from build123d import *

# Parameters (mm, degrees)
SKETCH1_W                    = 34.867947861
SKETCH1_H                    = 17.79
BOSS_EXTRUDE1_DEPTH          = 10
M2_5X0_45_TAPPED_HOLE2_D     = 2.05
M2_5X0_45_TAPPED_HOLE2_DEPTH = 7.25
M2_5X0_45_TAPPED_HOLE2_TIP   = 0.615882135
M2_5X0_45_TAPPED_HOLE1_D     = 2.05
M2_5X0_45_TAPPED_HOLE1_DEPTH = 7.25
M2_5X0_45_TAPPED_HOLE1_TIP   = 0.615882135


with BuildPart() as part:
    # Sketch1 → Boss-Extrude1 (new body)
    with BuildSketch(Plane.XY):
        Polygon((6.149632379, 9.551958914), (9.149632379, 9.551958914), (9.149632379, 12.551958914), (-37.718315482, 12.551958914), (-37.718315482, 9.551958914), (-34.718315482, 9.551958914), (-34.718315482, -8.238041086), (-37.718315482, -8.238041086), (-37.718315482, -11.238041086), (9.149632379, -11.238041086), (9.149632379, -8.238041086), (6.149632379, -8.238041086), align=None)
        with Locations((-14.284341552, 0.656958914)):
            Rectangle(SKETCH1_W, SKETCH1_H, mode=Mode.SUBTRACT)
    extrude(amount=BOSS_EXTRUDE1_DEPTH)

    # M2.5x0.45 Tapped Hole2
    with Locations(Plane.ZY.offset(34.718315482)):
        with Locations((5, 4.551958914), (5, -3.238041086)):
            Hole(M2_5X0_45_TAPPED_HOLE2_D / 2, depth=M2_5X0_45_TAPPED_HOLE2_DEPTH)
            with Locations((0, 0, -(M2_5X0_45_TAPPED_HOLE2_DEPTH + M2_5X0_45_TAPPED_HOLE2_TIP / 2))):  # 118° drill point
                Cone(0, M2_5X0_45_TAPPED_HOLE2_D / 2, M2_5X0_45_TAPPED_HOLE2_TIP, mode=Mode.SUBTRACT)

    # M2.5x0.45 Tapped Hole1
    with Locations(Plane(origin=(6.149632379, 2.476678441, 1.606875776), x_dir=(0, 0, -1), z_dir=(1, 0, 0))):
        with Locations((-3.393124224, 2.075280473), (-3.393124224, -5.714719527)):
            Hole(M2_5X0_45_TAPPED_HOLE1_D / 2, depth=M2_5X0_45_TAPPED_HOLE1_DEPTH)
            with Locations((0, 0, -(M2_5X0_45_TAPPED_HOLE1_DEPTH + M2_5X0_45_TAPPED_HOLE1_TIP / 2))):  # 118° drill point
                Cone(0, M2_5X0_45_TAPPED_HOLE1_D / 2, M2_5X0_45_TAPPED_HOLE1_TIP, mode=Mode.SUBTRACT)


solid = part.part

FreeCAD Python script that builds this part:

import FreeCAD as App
import Part
import Sketcher
from FreeCAD import Vector
Q = App.Units.Quantity

doc = App.newDocument("Part")
params = doc.addObject("Spreadsheet::Sheet", "Params")
for row, (alias, value) in enumerate([
    ("sketch1_width", "3 mm"),
    ("sketch1_height", "17.79 mm"),
    ("pad1_length", "10 mm"),
    ("sketch2_diameter", "2.05 mm"),
    ("hole_diameter", "2.05 mm"),
    ("hole_depth", "7.25 mm"),
    ("sketch3_diameter", "2.05 mm"),
    ("hole2_diameter", "2.05 mm"),
    ("hole2_depth", "7.25 mm"),
], start=1):
    params.set(f"A{row}", alias)
    params.set(f"B{row}", "=" + value)
    params.setAlias(f"B{row}", alias)

body = doc.addObject("PartDesign::Body", "Body")

sketch1 = body.newObject("Sketcher::SketchObject", "Sketch")
sketch1.AttachmentSupport = (doc.getObject("XY_Plane"), [""])
sketch1.MapMode = "FlatFace"
sketch1.addGeometry([
    Part.LineSegment(Vector(6.1, 9.6, 0), Vector(9.1, 9.6, 0)),
    Part.LineSegment(Vector(9.1, 9.6, 0), Vector(9.1, 12.6, 0)),
    Part.LineSegment(Vector(9.1, 12.6, 0), Vector(-37.7, 12.6, 0)),
    Part.LineSegment(Vector(-37.7, 12.6, 0), Vector(-37.7, 9.6, 0)),
    Part.LineSegment(Vector(-37.7, 9.6, 0), Vector(-34.7, 9.6, 0)),
    Part.LineSegment(Vector(-34.7, 9.6, 0), Vector(-34.7, -8.2, 0)),
    Part.LineSegment(Vector(-34.7, -8.2, 0), Vector(-37.7, -8.2, 0)),
    Part.LineSegment(Vector(-37.7, -8.2, 0), Vector(-37.7, -11.2, 0)),
    Part.LineSegment(Vector(-37.7, -11.2, 0), Vector(9.1, -11.2, 0)),
    Part.LineSegment(Vector(9.1, -11.2, 0), Vector(9.1, -8.2, 0)),
    Part.LineSegment(Vector(9.1, -8.2, 0), Vector(6.1, -8.2, 0)),
    Part.LineSegment(Vector(6.1, -8.2, 0), Vector(6.1, 9.6, 0)),
    Part.LineSegment(Vector(3.1, -8.2, 0), Vector(-31.7, -8.2, 0)),
    Part.LineSegment(Vector(-31.7, -8.2, 0), Vector(-31.7, 9.6, 0)),
    Part.LineSegment(Vector(-31.7, 9.6, 0), Vector(3.1, 9.6, 0)),
    Part.LineSegment(Vector(3.1, 9.6, 0), Vector(3.1, -8.2, 0)),
], False)
sketch1.addConstraint([
    Sketcher.Constraint("Coincident", 0, 2, 1, 1),
    Sketcher.Constraint("Coincident", 1, 2, 2, 1),
    Sketcher.Constraint("Coincident", 2, 2, 3, 1),
    Sketcher.Constraint("Coincident", 3, 2, 4, 1),
    Sketcher.Constraint("Coincident", 4, 2, 5, 1),
    Sketcher.Constraint("Coincident", 5, 2, 6, 1),
    Sketcher.Constraint("Coincident", 6, 2, 7, 1),
    Sketcher.Constraint("Coincident", 7, 2, 8, 1),
    Sketcher.Constraint("Coincident", 8, 2, 9, 1),
    Sketcher.Constraint("Coincident", 9, 2, 10, 1),
    Sketcher.Constraint("Coincident", 10, 2, 11, 1),
    Sketcher.Constraint("Coincident", 11, 2, 0, 1),
    Sketcher.Constraint("Coincident", 12, 2, 13, 1),
    Sketcher.Constraint("Coincident", 13, 2, 14, 1),
    Sketcher.Constraint("Coincident", 14, 2, 15, 1),
    Sketcher.Constraint("Coincident", 15, 2, 12, 1),
    Sketcher.Constraint("Horizontal", 0),
    Sketcher.Constraint("Vertical", 1),
    Sketcher.Constraint("Horizontal", 2),
    Sketcher.Constraint("Vertical", 3),
    Sketcher.Constraint("Horizontal", 4),
    Sketcher.Constraint("Vertical", 5),
    Sketcher.Constraint("Horizontal", 6),
    Sketcher.Constraint("Vertical", 7),
    Sketcher.Constraint("Horizontal", 8),
    Sketcher.Constraint("Vertical", 9),
    Sketcher.Constraint("Horizontal", 10),
    Sketcher.Constraint("Vertical", 11),
    Sketcher.Constraint("Horizontal", 12),
    Sketcher.Constraint("Vertical", 13),
    Sketcher.Constraint("Horizontal", 14),
    Sketcher.Constraint("Vertical", 15),
    Sketcher.Constraint("Horizontal", 0, 2, 3, 2),
    Sketcher.Constraint("Horizontal", 6, 2, 9, 2),
    Sketcher.Constraint("Horizontal", 10, 2, 12, 2),
    Sketcher.Constraint("Horizontal", 11, 2, 13, 2),
    Sketcher.Constraint("Vertical", 3, 2, 6, 2),
    Sketcher.Constraint("Vertical", 1, 2, 8, 2),
    Sketcher.Constraint("Equal", 0, 4),
    Sketcher.Constraint("Equal", 10, 1),
    Sketcher.Constraint("Equal", 3, 7),
    Sketcher.Constraint("DistanceX", 0, 1, 0, 2, Q("3 mm")),
    Sketcher.Constraint("DistanceX", 5, 2, 12, 2, Q("3 mm")),
    Sketcher.Constraint("DistanceX", 14, 2, 11, 2, Q("3 mm")),
    Sketcher.Constraint("DistanceY", 5, 2, 5, 1, Q("17.79 mm")),
    Sketcher.Constraint("DistanceX", 2, 2, 2, 1, Q("46.867948 mm")),
    Sketcher.Constraint("DistanceY", -1, 1, 0, 2, Q("9.551959 mm")),
    Sketcher.Constraint("DistanceX", -1, 1, 0, 2, Q("9.149632 mm")),
])
sketch1.setExpression("Constraints[41]", "Params.sketch1_width")
sketch1.setExpression("Constraints[44]", "Params.sketch1_height")
pad1 = body.newObject("PartDesign::Pad", "Pad")
pad1.Profile = sketch1
pad1.setExpression("Length", "Params.pad1_length")

sketch2 = body.newObject("Sketcher::SketchObject", "Sketch001")
sketch2.AttachmentSupport = (doc.getObject("YZ_Plane"), [""])
sketch2.MapMode = "FlatFace"
sketch2.AttachmentOffset = App.Placement(Vector(0, 0, -34.718315), App.Rotation())
sketch2.addGeometry([
    Part.Circle(Vector(4.6, 5, 0), Vector(0, 0, 1), 1),
    Part.Circle(Vector(-3.2, 5, 0), Vector(0, 0, 1), 1),
], False)
sketch2.addConstraint([
    Sketcher.Constraint("Equal", 0, 1),
    Sketcher.Constraint("Horizontal", 0, 3, 1, 3),
    Sketcher.Constraint("Diameter", 0, Q("2.05 mm")),
    Sketcher.Constraint("DistanceY", -1, 1, 0, 3, Q("5 mm")),
    Sketcher.Constraint("DistanceX", 1, 3, 0, 3, Q("7.79 mm")),
    Sketcher.Constraint("DistanceX", -1, 1, 0, 3, Q("4.551959 mm")),
])
sketch2.setExpression("Constraints[2]", "Params.sketch2_diameter")
doc.recompute()
hole = body.newObject("PartDesign::Hole", "Hole")
hole.Profile = sketch2
hole.ThreadType = "None"
hole.setExpression("Diameter", "Params.hole_diameter")
hole.DepthType = "Dimension"
hole.setExpression("Depth", "Params.hole_depth")
hole.DrillPoint = "Angled"
hole.DrillPointAngle = 118
hole.Reversed = True

sketch3 = body.newObject("Sketcher::SketchObject", "Sketch002")
sketch3.AttachmentSupport = (doc.getObject("YZ_Plane"), [""])
sketch3.MapMode = "FlatFace"
sketch3.AttachmentOffset = App.Placement(Vector(0, 0, 6.149632), App.Rotation())
sketch3.addGeometry([
    Part.Circle(Vector(4.6, 5, 0), Vector(0, 0, 1), 1),
    Part.Circle(Vector(-3.2, 5, 0), Vector(0, 0, 1), 1),
], False)
sketch3.addConstraint([
    Sketcher.Constraint("Equal", 0, 1),
    Sketcher.Constraint("Horizontal", 0, 3, 1, 3),
    Sketcher.Constraint("Diameter", 0, Q("2.05 mm")),
    Sketcher.Constraint("DistanceY", -1, 1, 0, 3, Q("5 mm")),
    Sketcher.Constraint("DistanceX", 1, 3, 0, 3, Q("7.79 mm")),
    Sketcher.Constraint("DistanceX", -1, 1, 0, 3, Q("4.551959 mm")),
])
sketch3.setExpression("Constraints[2]", "Params.sketch3_diameter")
doc.recompute()
hole2 = body.newObject("PartDesign::Hole", "Hole001")
hole2.Profile = sketch3
hole2.ThreadType = "None"
hole2.setExpression("Diameter", "Params.hole2_diameter")
hole2.DepthType = "Dimension"
hole2.setExpression("Depth", "Params.hole2_depth")
hole2.DrillPoint = "Angled"
hole2.DrillPointAngle = 118

doc.recompute()
